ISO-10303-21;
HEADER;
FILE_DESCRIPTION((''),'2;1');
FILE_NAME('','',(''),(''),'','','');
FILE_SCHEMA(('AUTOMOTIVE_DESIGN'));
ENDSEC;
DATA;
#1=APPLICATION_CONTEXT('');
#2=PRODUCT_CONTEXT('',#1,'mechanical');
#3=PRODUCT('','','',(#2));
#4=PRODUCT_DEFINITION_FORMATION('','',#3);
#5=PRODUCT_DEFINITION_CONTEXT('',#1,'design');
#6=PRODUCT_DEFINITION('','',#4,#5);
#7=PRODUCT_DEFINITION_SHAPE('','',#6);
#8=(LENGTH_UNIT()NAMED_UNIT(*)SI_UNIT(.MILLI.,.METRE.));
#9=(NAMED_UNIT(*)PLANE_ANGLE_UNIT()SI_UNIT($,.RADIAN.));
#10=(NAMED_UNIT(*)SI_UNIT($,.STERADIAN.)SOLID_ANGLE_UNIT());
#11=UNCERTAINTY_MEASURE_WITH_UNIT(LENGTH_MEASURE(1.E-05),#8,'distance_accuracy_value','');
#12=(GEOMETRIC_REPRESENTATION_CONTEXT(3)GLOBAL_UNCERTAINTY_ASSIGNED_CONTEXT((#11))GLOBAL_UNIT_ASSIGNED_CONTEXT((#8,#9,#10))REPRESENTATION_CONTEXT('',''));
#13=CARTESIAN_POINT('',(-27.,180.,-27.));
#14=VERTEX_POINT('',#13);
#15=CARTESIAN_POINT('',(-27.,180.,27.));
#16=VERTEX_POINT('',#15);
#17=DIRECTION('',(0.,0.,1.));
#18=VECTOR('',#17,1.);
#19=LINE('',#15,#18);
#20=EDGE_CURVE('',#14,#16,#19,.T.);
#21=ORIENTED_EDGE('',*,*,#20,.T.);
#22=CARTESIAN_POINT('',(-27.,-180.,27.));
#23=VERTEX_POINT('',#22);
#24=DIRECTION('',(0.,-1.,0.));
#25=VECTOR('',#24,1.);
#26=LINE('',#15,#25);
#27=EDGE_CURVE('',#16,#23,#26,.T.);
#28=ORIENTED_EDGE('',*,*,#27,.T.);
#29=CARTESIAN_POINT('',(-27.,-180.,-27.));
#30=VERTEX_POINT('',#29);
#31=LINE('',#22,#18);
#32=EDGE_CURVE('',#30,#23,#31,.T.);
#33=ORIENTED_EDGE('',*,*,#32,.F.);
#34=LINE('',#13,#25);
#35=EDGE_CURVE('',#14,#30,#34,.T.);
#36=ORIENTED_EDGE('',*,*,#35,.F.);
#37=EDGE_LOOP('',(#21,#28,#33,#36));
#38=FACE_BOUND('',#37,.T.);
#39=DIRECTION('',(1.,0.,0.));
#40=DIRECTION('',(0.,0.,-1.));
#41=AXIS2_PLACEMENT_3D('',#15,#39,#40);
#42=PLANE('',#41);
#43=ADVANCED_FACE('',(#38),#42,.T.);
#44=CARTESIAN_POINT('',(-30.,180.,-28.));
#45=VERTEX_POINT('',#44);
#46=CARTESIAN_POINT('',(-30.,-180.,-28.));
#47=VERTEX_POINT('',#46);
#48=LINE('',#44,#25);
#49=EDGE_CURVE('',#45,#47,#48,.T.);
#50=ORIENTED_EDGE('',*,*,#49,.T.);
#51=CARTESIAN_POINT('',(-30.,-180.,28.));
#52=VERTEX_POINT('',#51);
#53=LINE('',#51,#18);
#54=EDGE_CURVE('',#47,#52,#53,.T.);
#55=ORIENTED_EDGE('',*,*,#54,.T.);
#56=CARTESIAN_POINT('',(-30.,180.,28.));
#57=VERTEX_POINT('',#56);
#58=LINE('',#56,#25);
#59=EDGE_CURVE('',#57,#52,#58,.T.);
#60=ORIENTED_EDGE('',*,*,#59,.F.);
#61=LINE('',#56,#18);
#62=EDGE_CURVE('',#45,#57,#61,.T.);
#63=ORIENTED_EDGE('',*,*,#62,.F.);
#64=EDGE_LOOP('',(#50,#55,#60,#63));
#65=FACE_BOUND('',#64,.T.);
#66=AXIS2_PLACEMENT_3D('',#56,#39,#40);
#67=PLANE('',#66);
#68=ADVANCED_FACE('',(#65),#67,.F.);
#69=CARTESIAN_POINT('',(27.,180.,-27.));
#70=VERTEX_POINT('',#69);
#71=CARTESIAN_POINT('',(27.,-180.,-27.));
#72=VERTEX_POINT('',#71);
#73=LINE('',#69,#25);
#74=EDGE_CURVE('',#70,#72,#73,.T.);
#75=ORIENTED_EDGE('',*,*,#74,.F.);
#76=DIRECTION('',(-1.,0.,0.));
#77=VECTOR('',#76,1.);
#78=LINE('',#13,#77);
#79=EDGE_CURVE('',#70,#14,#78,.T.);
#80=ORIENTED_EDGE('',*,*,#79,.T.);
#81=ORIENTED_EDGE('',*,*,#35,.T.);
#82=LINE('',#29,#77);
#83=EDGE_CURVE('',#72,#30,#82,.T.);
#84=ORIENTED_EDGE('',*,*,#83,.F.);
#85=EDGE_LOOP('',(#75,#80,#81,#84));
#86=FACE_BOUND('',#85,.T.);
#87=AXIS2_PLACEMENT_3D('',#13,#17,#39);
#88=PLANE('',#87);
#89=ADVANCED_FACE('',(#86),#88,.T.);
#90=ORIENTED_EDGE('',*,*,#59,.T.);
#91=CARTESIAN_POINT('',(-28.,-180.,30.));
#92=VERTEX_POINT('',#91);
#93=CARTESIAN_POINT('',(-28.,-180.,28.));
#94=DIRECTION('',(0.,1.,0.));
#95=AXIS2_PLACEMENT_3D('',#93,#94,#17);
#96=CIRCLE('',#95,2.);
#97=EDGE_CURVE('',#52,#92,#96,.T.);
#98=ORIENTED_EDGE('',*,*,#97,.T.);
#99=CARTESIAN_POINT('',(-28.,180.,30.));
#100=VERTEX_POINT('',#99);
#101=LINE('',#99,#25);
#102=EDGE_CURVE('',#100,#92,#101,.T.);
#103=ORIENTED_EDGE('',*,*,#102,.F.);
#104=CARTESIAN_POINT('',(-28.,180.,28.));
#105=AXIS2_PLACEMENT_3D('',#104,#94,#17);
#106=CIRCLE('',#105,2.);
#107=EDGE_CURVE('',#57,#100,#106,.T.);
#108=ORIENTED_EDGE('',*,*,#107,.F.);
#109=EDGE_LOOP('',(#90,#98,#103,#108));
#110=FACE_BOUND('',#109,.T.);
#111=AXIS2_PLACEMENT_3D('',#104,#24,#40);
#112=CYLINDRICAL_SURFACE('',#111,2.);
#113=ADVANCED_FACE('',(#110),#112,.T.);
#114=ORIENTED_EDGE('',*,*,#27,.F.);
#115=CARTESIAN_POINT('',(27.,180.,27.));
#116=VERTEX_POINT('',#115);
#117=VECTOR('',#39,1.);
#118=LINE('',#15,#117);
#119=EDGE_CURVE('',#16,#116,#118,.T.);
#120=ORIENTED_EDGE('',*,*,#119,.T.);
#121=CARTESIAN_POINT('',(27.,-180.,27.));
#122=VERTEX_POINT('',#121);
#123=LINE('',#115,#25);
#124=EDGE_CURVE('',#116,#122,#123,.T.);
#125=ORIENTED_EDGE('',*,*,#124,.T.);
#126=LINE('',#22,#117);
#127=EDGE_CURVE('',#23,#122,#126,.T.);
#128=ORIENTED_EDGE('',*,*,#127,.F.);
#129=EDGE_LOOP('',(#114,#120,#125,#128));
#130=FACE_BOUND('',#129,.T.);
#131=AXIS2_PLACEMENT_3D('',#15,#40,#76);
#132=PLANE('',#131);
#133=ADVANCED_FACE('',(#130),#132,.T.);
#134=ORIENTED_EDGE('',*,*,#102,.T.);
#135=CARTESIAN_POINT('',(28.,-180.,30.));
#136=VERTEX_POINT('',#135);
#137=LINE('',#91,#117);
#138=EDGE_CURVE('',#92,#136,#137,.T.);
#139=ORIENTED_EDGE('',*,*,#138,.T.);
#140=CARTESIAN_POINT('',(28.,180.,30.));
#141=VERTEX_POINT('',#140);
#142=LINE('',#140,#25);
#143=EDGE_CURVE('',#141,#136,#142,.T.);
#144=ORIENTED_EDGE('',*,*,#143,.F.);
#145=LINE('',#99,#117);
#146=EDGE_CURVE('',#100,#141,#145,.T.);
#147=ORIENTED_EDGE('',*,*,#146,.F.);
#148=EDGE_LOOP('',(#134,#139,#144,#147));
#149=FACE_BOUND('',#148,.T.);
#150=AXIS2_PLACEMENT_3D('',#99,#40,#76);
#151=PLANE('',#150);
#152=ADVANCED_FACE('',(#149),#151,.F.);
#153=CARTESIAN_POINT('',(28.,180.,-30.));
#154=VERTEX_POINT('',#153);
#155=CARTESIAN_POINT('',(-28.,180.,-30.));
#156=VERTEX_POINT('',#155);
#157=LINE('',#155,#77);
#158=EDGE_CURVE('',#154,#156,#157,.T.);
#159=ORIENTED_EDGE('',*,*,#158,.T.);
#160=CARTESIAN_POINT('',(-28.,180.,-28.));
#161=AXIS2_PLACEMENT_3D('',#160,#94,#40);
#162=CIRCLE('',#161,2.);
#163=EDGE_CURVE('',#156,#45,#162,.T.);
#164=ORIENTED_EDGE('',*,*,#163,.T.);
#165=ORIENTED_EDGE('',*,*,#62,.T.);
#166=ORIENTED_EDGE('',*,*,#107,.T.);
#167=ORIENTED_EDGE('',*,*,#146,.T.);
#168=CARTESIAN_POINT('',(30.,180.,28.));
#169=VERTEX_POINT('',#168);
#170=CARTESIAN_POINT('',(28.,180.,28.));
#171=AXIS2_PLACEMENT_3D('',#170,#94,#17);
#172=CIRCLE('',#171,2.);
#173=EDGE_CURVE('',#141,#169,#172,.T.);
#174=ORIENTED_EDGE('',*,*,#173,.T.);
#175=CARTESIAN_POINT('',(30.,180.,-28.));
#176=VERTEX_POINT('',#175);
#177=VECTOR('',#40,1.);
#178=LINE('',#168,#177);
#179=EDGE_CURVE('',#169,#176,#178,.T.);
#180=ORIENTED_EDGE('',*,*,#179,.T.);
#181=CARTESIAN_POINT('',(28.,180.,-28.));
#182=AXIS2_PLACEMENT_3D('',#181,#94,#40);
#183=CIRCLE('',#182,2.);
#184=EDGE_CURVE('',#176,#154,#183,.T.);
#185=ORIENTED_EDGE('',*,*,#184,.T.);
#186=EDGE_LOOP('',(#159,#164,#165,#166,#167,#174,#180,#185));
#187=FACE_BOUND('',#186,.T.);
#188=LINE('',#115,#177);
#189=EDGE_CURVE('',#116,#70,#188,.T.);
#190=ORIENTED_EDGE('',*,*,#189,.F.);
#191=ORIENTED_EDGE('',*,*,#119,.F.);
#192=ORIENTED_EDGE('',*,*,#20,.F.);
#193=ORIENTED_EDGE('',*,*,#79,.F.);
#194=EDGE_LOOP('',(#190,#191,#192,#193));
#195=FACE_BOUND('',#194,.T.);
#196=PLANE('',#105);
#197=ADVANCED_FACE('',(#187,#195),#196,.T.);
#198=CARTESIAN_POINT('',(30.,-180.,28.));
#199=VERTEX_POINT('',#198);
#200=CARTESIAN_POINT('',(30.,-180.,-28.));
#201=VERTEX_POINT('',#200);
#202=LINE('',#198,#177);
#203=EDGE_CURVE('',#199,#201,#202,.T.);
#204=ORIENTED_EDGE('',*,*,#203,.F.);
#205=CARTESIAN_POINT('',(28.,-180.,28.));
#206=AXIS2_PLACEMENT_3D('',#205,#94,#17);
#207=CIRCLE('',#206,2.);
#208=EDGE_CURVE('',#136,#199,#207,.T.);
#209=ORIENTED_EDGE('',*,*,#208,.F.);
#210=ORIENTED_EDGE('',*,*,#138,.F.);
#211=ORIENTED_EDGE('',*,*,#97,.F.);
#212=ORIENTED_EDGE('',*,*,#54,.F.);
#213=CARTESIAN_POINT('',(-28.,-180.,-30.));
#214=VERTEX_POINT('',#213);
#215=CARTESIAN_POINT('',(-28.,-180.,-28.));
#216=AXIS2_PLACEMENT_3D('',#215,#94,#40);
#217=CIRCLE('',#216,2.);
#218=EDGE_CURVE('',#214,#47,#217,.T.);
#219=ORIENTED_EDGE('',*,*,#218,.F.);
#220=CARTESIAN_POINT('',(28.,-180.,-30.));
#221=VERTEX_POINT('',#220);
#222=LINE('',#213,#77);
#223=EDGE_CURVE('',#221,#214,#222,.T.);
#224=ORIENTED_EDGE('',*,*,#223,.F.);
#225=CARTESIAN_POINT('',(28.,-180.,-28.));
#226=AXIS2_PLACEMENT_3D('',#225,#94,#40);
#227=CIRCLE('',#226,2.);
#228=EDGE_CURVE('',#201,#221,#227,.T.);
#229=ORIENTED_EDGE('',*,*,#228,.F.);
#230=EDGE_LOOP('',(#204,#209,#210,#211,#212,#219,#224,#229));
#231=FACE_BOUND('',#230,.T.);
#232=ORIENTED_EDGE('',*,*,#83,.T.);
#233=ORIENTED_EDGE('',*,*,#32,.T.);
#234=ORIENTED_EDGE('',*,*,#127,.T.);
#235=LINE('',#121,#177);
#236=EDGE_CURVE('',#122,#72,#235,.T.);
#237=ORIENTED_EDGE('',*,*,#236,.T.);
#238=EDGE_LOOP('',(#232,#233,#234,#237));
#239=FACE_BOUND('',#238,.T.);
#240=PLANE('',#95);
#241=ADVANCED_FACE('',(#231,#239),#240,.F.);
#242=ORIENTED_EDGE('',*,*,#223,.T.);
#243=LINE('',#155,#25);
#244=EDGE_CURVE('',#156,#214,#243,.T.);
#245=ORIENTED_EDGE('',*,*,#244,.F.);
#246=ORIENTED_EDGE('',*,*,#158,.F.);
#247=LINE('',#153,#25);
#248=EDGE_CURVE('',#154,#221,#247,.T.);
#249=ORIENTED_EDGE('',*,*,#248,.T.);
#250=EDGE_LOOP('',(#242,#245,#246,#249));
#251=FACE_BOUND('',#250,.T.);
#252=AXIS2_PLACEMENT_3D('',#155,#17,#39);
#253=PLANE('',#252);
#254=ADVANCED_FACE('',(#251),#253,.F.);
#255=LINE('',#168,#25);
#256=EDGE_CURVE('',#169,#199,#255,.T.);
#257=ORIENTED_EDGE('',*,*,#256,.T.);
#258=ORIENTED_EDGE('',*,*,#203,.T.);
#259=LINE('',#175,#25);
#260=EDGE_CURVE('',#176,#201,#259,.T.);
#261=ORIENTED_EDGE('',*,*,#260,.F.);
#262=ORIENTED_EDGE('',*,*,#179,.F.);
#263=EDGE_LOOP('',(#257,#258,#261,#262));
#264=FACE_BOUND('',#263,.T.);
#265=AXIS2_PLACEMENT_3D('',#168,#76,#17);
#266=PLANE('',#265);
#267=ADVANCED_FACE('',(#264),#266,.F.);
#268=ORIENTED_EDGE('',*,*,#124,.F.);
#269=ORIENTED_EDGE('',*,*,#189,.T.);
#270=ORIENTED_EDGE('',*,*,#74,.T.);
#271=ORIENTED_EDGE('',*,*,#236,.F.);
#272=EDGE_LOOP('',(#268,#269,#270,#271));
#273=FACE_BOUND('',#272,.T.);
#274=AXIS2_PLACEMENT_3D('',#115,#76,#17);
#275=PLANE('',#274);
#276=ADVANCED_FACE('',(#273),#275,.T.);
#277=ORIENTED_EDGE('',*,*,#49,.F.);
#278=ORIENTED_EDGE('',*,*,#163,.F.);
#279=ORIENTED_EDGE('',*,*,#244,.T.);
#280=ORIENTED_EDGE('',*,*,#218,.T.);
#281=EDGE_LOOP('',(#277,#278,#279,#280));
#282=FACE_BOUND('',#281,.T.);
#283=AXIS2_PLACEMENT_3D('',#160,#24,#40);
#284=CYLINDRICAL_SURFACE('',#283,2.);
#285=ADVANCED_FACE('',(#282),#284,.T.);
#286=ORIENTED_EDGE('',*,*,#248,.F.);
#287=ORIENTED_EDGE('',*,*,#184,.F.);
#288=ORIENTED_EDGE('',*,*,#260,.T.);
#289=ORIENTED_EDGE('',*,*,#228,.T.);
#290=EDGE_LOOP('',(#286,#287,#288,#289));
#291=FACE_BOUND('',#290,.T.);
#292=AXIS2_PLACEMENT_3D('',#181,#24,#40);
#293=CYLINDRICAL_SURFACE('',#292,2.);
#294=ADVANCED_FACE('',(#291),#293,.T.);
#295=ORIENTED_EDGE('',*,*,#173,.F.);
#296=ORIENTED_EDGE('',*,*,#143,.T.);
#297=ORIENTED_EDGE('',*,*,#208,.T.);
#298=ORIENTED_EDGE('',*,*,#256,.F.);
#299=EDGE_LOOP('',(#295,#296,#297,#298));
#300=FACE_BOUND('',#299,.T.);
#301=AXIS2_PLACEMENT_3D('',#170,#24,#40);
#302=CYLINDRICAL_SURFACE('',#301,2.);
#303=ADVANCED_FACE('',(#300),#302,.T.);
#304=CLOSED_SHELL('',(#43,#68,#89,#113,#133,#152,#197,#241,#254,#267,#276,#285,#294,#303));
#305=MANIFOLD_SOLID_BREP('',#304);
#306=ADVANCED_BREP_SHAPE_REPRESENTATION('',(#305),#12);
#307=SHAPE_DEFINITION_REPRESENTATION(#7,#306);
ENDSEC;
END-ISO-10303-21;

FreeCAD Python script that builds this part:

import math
import FreeCAD as App
import Part
import Sketcher
Q = App.Units.Quantity

doc = App.newDocument("Part")
params = doc.addObject("Spreadsheet::Sheet", "Params")
for row, (alias, value) in enumerate([
    ("sketch1_radius", "2 mm"),
    ("sketch1_width", "56 mm"),
    ("sketch1_width2", "54 mm"),
    ("pad1_length", "360 mm"),
], start=1):
    params.set(f"A{row}", alias)
    params.set(f"B{row}", "=" + value)
    params.setAlias(f"B{row}", alias)

body = doc.addObject("PartDesign::Body", "Body")

# Sketch on XZ plane
sketch1 = body.newObject("Sketcher::SketchObject", "Sketch")
sketch1.AttachmentSupport = (doc.getObject("XZ_Plane"), [""])
sketch1.MapMode = "FlatFace"
sketch1.addGeometry([
    Part.LineSegment(App.Vector(-28, 30, 0), App.Vector(28, 30, 0)),  # 0
    Part.ArcOfCircle(Part.Circle(App.Vector(28, 28, 0), App.Vector(0, 0, 1), 2), math.radians(0), math.radians(90)),  # 1
    Part.LineSegment(App.Vector(30, 28, 0), App.Vector(30, -28, 0)),  # 2
    Part.ArcOfCircle(Part.Circle(App.Vector(28, -28, 0), App.Vector(0, 0, 1), 2), math.radians(-90), math.radians(0)),  # 3
    Part.LineSegment(App.Vector(28, -30, 0), App.Vector(-28, -30, 0)),  # 4
    Part.ArcOfCircle(Part.Circle(App.Vector(-28, -28, 0), App.Vector(0, 0, 1), 2), math.radians(-180), math.radians(-90)),  # 5
    Part.LineSegment(App.Vector(-30, -28, 0), App.Vector(-30, 28, 0)),  # 6
    Part.ArcOfCircle(Part.Circle(App.Vector(-28, 28, 0), App.Vector(0, 0, 1), 2), math.radians(90), math.radians(180)),  # 7
    Part.LineSegment(App.Vector(27, 27, 0), App.Vector(-27, 27, 0)),  # 8
    Part.LineSegment(App.Vector(-27, 27, 0), App.Vector(-27, -27, 0)),  # 9
    Part.LineSegment(App.Vector(-27, -27, 0), App.Vector(27, -27, 0)),  # 10
    Part.LineSegment(App.Vector(27, -27, 0), App.Vector(27, 27, 0)),  # 11
], False)
sketch1.addConstraint([
    Sketcher.Constraint("Tangent", 0, 2, 1, 2),
    Sketcher.Constraint("Tangent", 1, 1, 2, 1),
    Sketcher.Constraint("Tangent", 2, 2, 3, 2),
    Sketcher.Constraint("Tangent", 3, 1, 4, 1),
    Sketcher.Constraint("Tangent", 4, 2, 5, 2),
    Sketcher.Constraint("Tangent", 5, 1, 6, 1),
    Sketcher.Constraint("Tangent", 6, 2, 7, 2),
    Sketcher.Constraint("Tangent", 7, 1, 0, 1),
    Sketcher.Constraint("Coincident", 8, 2, 9, 1),
    Sketcher.Constraint("Coincident", 9, 2, 10, 1),
    Sketcher.Constraint("Coincident", 10, 2, 11, 1),
    Sketcher.Constraint("Coincident", 11, 2, 8, 1),
    Sketcher.Constraint("Horizontal", 0),
    Sketcher.Constraint("Vertical", 2),
    Sketcher.Constraint("Horizontal", 4),
    Sketcher.Constraint("Vertical", 6),
    Sketcher.Constraint("Horizontal", 8),
    Sketcher.Constraint("Vertical", 9),
    Sketcher.Constraint("Horizontal", 10),
    Sketcher.Constraint("Vertical", 11),
    Sketcher.Constraint("Equal", 1, 3),
    Sketcher.Constraint("Equal", 3, 5),
    Sketcher.Constraint("Equal", 5, 7),
    Sketcher.Constraint("Symmetric", 1, 3, 5, 3, -1, 1),
    Sketcher.Constraint("Symmetric", 8, 2, 10, 2, -1, 1),
    Sketcher.Constraint("Equal", 4, 2),
    Sketcher.Constraint("Equal", 10, 9),
    Sketcher.Constraint("Radius", 1, Q("2 mm")),
    Sketcher.Constraint("DistanceX", 0, 1, 0, 2, Q("56 mm")),
    Sketcher.Constraint("DistanceX", 8, 2, 8, 1, Q("54 mm")),
])
sketch1.setExpression("Constraints[27]", "Params.sketch1_radius")
sketch1.setExpression("Constraints[28]", "Params.sketch1_width")
sketch1.setExpression("Constraints[29]", "Params.sketch1_width2")
pad1 = body.newObject("PartDesign::Pad", "Pad")
pad1.Profile = sketch1
pad1.setExpression("Length", "Params.pad1_length")
pad1.Midplane = True

doc.recompute()
